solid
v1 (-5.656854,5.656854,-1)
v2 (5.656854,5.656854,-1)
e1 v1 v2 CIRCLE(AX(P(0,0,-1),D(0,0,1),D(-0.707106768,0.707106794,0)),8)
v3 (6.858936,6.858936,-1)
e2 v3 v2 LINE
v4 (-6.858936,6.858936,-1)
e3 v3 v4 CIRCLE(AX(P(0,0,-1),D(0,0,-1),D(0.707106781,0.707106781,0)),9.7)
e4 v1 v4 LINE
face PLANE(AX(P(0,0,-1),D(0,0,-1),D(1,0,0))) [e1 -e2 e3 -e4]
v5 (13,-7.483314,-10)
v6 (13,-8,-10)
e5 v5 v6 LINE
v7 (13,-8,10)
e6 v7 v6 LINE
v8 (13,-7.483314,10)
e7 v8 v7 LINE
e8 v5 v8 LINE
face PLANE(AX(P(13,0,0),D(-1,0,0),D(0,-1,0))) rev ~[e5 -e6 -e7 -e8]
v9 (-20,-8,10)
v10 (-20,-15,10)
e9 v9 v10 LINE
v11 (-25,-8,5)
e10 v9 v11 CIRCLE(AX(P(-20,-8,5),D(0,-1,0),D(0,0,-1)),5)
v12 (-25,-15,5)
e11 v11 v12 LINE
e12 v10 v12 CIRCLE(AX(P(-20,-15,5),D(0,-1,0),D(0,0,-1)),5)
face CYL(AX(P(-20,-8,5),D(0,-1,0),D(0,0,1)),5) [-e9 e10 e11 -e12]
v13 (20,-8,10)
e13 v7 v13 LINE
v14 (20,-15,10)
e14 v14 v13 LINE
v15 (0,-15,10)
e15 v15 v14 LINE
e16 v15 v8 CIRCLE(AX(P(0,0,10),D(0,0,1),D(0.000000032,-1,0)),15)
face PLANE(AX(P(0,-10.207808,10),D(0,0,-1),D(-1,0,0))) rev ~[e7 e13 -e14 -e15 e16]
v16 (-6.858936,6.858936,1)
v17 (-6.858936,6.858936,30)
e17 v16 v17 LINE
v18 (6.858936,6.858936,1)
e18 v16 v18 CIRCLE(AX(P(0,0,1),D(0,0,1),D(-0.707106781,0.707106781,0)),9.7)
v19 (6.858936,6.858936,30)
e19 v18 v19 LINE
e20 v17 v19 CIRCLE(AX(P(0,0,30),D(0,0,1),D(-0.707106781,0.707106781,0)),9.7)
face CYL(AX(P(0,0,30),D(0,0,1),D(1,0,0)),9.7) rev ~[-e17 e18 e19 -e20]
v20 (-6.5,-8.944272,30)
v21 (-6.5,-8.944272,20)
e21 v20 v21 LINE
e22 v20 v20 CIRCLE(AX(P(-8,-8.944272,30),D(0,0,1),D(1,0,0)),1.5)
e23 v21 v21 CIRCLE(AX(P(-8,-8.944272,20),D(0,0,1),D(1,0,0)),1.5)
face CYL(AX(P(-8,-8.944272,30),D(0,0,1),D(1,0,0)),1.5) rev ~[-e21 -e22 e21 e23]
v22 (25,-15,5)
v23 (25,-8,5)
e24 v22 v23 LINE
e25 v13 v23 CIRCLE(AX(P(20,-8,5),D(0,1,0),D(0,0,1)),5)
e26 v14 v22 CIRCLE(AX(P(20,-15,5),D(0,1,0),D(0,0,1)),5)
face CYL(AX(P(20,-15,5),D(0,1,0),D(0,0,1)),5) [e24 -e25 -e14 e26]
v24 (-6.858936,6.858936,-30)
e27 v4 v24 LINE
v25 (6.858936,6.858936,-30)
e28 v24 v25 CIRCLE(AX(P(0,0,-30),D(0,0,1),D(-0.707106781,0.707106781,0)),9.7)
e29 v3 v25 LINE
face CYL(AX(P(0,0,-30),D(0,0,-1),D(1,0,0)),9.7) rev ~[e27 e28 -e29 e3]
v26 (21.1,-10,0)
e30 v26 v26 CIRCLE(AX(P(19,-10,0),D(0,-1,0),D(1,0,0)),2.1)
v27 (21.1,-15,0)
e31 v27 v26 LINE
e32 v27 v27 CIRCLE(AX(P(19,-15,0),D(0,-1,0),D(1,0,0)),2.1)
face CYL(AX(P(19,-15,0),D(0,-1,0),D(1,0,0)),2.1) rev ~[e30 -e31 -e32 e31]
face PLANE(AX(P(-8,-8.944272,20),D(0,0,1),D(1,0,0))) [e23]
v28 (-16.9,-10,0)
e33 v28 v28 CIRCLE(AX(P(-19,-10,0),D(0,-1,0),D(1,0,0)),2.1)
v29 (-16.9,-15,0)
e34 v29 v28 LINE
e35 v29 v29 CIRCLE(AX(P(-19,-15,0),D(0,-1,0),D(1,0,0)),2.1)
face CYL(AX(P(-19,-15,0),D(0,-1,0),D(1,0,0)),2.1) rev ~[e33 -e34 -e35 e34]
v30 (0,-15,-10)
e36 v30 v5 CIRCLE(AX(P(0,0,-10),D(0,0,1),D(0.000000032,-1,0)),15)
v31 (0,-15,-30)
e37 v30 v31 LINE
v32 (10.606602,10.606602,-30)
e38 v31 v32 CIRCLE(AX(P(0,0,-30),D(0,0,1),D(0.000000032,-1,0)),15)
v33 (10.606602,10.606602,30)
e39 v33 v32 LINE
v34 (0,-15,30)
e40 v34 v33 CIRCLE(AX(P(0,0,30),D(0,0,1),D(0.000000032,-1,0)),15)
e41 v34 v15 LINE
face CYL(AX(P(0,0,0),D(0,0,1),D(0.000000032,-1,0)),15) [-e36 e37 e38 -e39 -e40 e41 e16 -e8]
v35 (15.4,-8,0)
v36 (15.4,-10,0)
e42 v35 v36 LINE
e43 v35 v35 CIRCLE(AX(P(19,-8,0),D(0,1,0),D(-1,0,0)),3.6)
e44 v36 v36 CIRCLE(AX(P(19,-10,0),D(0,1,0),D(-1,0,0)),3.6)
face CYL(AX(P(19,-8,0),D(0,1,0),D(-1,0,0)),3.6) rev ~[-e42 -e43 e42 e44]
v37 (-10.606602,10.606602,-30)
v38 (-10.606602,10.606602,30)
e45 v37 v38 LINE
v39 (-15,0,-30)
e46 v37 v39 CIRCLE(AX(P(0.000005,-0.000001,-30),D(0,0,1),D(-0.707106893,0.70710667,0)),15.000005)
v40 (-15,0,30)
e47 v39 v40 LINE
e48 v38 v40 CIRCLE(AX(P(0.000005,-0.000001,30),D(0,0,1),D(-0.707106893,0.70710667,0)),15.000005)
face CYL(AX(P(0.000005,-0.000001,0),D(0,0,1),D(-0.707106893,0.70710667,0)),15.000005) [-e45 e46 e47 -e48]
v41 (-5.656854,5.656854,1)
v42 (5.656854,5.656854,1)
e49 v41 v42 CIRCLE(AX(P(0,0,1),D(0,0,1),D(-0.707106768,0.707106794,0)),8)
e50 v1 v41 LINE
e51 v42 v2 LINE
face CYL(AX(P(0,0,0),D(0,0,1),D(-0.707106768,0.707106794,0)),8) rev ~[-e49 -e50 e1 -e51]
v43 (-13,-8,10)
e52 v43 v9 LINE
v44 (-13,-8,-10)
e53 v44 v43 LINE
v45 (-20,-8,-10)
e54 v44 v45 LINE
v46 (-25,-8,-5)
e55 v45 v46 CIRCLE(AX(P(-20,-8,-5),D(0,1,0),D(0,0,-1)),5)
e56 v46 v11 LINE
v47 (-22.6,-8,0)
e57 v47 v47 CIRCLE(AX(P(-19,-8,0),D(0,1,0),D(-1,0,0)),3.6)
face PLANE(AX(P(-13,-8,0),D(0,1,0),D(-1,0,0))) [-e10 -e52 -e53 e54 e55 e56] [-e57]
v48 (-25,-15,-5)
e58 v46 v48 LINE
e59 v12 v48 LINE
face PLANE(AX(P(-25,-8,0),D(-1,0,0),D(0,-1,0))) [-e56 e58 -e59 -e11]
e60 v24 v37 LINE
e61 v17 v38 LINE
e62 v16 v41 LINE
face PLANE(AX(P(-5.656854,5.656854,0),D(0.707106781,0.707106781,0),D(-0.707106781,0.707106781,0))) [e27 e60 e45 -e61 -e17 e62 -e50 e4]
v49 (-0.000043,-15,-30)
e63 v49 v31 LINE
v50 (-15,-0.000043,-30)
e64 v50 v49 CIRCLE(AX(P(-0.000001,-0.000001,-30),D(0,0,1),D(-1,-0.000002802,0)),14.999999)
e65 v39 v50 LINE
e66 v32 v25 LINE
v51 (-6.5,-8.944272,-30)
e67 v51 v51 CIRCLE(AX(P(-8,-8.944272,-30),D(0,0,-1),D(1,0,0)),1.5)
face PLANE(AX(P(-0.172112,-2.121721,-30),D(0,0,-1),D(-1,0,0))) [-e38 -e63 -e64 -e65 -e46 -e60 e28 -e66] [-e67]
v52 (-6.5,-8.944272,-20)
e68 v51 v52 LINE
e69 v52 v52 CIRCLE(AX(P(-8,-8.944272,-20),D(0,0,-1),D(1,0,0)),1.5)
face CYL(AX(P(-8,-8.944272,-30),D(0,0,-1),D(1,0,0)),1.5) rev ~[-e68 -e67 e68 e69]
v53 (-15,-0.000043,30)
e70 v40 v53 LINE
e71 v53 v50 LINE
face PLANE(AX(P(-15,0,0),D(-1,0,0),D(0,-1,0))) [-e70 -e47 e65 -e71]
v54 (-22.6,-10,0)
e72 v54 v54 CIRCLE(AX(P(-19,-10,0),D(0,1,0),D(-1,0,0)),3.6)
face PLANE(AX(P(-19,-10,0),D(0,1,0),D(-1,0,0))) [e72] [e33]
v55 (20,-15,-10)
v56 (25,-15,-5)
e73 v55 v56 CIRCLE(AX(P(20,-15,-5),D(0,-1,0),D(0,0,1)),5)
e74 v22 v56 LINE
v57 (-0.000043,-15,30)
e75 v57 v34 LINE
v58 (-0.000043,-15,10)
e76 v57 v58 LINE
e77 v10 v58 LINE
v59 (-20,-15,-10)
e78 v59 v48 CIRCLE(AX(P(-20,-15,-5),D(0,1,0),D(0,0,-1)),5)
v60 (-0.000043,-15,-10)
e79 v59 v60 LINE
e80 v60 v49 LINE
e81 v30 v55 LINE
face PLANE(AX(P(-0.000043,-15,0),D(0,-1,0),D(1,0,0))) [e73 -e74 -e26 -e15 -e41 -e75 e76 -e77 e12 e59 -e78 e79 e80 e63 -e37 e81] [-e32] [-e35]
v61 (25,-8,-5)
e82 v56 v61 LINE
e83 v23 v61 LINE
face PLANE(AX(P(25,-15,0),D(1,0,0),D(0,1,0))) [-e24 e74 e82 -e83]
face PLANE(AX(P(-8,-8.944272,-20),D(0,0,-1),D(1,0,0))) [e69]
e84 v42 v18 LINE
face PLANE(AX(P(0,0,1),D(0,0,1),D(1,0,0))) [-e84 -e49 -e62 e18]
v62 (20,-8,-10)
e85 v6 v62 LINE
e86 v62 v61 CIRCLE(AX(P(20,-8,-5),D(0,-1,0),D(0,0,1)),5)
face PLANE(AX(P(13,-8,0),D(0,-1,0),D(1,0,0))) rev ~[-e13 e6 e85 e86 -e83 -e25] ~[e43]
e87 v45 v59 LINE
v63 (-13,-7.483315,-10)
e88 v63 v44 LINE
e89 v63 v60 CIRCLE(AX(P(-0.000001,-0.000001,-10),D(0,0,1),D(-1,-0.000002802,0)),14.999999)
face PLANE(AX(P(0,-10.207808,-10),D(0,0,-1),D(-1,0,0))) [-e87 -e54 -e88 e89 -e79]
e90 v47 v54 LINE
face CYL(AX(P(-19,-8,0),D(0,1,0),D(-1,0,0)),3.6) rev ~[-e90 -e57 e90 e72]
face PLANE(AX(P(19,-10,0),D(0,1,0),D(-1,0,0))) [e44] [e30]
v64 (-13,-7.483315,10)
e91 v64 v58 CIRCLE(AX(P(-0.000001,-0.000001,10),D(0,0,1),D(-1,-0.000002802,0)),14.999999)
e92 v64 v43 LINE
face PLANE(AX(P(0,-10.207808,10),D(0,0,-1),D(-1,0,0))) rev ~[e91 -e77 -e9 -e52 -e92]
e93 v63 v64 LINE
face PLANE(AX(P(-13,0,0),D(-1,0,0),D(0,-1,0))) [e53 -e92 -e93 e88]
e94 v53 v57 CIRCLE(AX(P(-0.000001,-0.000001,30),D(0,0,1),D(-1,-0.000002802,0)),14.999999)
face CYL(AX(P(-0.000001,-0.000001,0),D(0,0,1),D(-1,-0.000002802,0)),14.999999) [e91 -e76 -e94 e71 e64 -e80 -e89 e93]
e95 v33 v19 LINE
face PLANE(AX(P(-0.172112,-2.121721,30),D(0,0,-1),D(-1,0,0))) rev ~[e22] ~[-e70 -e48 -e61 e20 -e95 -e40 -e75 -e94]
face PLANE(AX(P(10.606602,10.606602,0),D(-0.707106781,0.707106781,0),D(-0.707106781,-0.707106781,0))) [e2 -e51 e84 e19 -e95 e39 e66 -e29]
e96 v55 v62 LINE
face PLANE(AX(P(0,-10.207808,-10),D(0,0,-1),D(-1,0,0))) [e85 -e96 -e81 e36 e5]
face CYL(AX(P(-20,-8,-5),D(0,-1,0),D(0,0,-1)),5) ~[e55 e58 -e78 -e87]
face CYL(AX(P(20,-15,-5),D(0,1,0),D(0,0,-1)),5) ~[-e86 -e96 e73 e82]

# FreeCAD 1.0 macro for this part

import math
import FreeCAD as App
import Part
import Sketcher

V = App.Vector


def edges_at(feature, points):
    """Names of the edges that pass closest to the given points."""
    edges = feature.Shape.Edges
    near = lambda p: min(range(len(edges)), key=lambda i: edges[i].distToShape(Part.Vertex(*p))[0])
    return sorted({f"Edge{near(p) + 1}" for p in points})

doc = App.newDocument("Part")
params = doc.addObject("Spreadsheet::Sheet", "Params")
for row, (alias, value) in enumerate([
    ("sketch1_radius", "8 mm"),
    ("sketch1_radius2", "14.999999 mm"),
    ("pad1_length", "60 mm"),
    ("sketch2_diameter", "19.4 mm"),
    ("pocket1_length", "29 mm"),
    ("sketch3_diameter", "19.4 mm"),
    ("pocket2_length", "29 mm"),
    ("sketch4_diameter", "3 mm"),
    ("pocket3_length", "10 mm"),
    ("sketch5_diameter", "3 mm"),
    ("pocket4_length", "10 mm"),
    ("sketch6_radius", "13 mm"),
    ("sketch6_width", "12 mm"),
    ("sketch6_height", "8 mm"),
    ("sketch6_height2", "7 mm"),
    ("pad2_length", "20 mm"),
    ("sketch7_diameter", "4.2 mm"),
    ("pocket5_length", "7 mm"),
    ("sketch8_diameter", "7.2 mm"),
    ("pocket6_length", "2 mm"),
    ("fillet_radius", "5 mm"),
], start=1):
    params.set(f"A{row}", alias)
    params.set(f"B{row}", "=" + value)
    params.setAlias(f"B{row}", alias)

body = doc.addObject("PartDesign::Body", "Body")

# Sketch on XY plane
sketch1 = body.newObject("Sketcher::SketchObject", "Sketch")
sketch1.AttachmentSupport = (doc.getObject("XY_Plane"), [""])
sketch1.MapMode = "FlatFace"
sketch1.addGeometry([
    Part.ArcOfCircle(Part.Circle(V(0, 0, 0), V(0, 0, 1), 8), math.radians(134.999999), math.radians(405.000001)),  # 0
    Part.LineSegment(V(-5.656854, 5.656854, 0), V(-10.606602, 10.606602, 0)),  # 1
    Part.ArcOfCircle(Part.Circle(V(0.000005, -0.000001, 0), V(0, 0, 1), 15.000005), math.radians(135.000009), math.radians(179.999995)),  # 2
    Part.LineSegment(V(-15, 0, 0), V(-15, -0.000043, 0)),  # 3
    Part.ArcOfCircle(Part.Circle(V(-0.000001, -0.000001, 0), V(0, 0, 1), 14.999999), math.radians(-179.999839), math.radians(-90.000161)),  # 4
    Part.LineSegment(V(-0.000043, -15, 0), V(0, -15, 0)),  # 5
    Part.ArcOfCircle(Part.Circle(V(0, 0, 0), V(0, 0, 1), 15), math.radians(-89.999998), math.radians(44.999998)),  # 6
    Part.LineSegment(V(10.606602, 10.606602, 0), V(5.656854, 5.656854, 0)),  # 7
], False)
sketch1.addConstraint([
    Sketcher.Constraint("Coincident", 0, 1, 1, 1),
    Sketcher.Constraint("Coincident", 1, 2, 2, 1),
    Sketcher.Constraint("Tangent", 2, 2, 3, 1),
    Sketcher.Constraint("Coincident", 3, 2, 4, 1),
    Sketcher.Constraint("Coincident", 4, 2, 5, 1),
    Sketcher.Constraint("Tangent", 5, 2, 6, 1),
    Sketcher.Constraint("Coincident", 6, 2, 7, 1),
    Sketcher.Constraint("Coincident", 7, 2, 0, 2),
    Sketcher.Constraint("Coincident", 0, 3, -1, 1),
    Sketcher.Constraint("Coincident", 2, 3, -1, 1),
    Sketcher.Constraint("Coincident", 4, 3, -1, 1),
    Sketcher.Constraint("Coincident", 6, 3, -1, 1),
    Sketcher.Constraint("PointOnObject", 2, 2, -1),
    Sketcher.Constraint("PointOnObject", 5, 2, -2),
    Sketcher.Constraint("Perpendicular", 1, 7),
    Sketcher.Constraint("Horizontal", 1, 2, 6, 2),
    Sketcher.Constraint("Horizontal", 0, 1, 7, 2),
    Sketcher.Constraint("Equal", 5, 3),
    Sketcher.Constraint("Radius", 0, 8.0),
    Sketcher.Constraint("Radius", 4, 14.999999),
    Sketcher.Constraint("DistanceX", -1, 1, 6, 2, 10.606602),
    Sketcher.Constraint("DistanceY", 3, 2, 0, 1, 5.656897),
])
sketch1.setExpression("Constraints[18]", "Params.sketch1_radius")
sketch1.setExpression("Constraints[19]", "Params.sketch1_radius2")
pad1 = body.newObject("PartDesign::Pad", "Pad")
pad1.Profile = sketch1
pad1.setExpression("Length", "Params.pad1_length")
pad1.Midplane = True

# Sketch on XY plane
sketch2 = body.newObject("Sketcher::SketchObject", "Sketch001")
sketch2.AttachmentSupport = (doc.getObject("XY_Plane"), [""])
sketch2.MapMode = "FlatFace"
sketch2.AttachmentOffset = App.Placement(V(0, 0, 30), App.Rotation())
sketch2.addGeometry(Part.Circle(V(0, 0, 0), V(0, 0, 1), 10), False)
sketch2.addConstraint([
    Sketcher.Constraint("Coincident", 0, 3, -1, 1),
    Sketcher.Constraint("Diameter", 0, 19.4),
])
sketch2.setExpression("Constraints[1]", "Params.sketch2_diameter")
pocket1 = body.newObject("PartDesign::Pocket", "Pocket")
pocket1.Profile = sketch2
pocket1.setExpression("Length", "Params.pocket1_length")

# Sketch on XY plane
sketch3 = body.newObject("Sketcher::SketchObject", "Sketch002")
sketch3.AttachmentSupport = (doc.getObject("XY_Plane"), [""])
sketch3.MapMode = "FlatFace"
sketch3.AttachmentOffset = App.Placement(V(0, 0, -30), App.Rotation())
sketch3.addGeometry(Part.Circle(V(0, 0, 0), V(0, 0, 1), 10), False)
sketch3.addConstraint([
    Sketcher.Constraint("Coincident", 0, 3, -1, 1),
    Sketcher.Constraint("Diameter", 0, 19.4),
])
sketch3.setExpression("Constraints[1]", "Params.sketch3_diameter")
pocket2 = body.newObject("PartDesign::Pocket", "Pocket001")
pocket2.Profile = sketch3
pocket2.setExpression("Length", "Params.pocket2_length")
pocket2.Reversed = True

# Sketch on XY plane
sketch4 = body.newObject("Sketcher::SketchObject", "Sketch003")
sketch4.AttachmentSupport = (doc.getObject("XY_Plane"), [""])
sketch4.MapMode = "FlatFace"
sketch4.AttachmentOffset = App.Placement(V(0, 0, 30), App.Rotation())
sketch4.addGeometry(Part.Circle(V(-8, -8.9, 0), V(0, 0, 1), 1.5), False)
sketch4.addConstraint([
    Sketcher.Constraint("Diameter", 0, 3.0),
    Sketcher.Constraint("DistanceX", 0, 3, -1, 1, 8.0),
    Sketcher.Constraint("DistanceY", 0, 3, -1, 1, 8.944272),
])
sketch4.setExpression("Constraints[0]", "Params.sketch4_diameter")
pocket3 = body.newObject("PartDesign::Pocket", "Pocket002")
pocket3.Profile = sketch4
pocket3.setExpression("Length", "Params.pocket3_length")

# Sketch on XY plane
sketch5 = body.newObject("Sketcher::SketchObject", "Sketch004")
sketch5.AttachmentSupport = (doc.getObject("XY_Plane"), [""])
sketch5.MapMode = "FlatFace"
sketch5.AttachmentOffset = App.Placement(V(0, 0, -30), App.Rotation())
sketch5.addGeometry(Part.Circle(V(-8, -8.9, 0), V(0, 0, 1), 1.5), False)
sketch5.addConstraint([
    Sketcher.Constraint("Diameter", 0, 3.0),
    Sketcher.Constraint("DistanceX", 0, 3, -1, 1, 8.0),
    Sketcher.Constraint("DistanceY", 0, 3, -1, 1, 8.944272),
])
sketch5.setExpression("Constraints[0]", "Params.sketch5_diameter")
pocket4 = body.newObject("PartDesign::Pocket", "Pocket003")
pocket4.Profile = sketch5
pocket4.setExpression("Length", "Params.pocket4_length")
pocket4.Reversed = True
body2 = doc.addObject("PartDesign::Body", "Body001")

# Sketch on XY plane
sketch6 = body2.newObject("Sketcher::SketchObject", "Sketch005")
sketch6.AttachmentSupport = (doc.getObject("XY_Plane001"), [""])
sketch6.MapMode = "FlatFace"
sketch6.addGeometry([
    Part.ArcOfCircle(Part.Circle(V(0, 0, 0), V(0, 0, 1), 13), math.radians(180), math.radians(360)),  # 0
    Part.LineSegment(V(-13, 0, 0), V(-13, -8, 0)),  # 1
    Part.LineSegment(V(-13, -8, 0), V(-25, -8, 0)),  # 2
    Part.LineSegment(V(-25, -8, 0), V(-25, -15, 0)),  # 3
    Part.LineSegment(V(-25, -15, 0), V(25, -15, 0)),  # 4
    Part.LineSegment(V(25, -15, 0), V(25, -8, 0)),  # 5
    Part.LineSegment(V(25, -8, 0), V(13, -8, 0)),  # 6
    Part.LineSegment(V(13, -8, 0), V(13, 0, 0)),  # 7
], False)
sketch6.addConstraint([
    Sketcher.Constraint("Tangent", 0, 1, 1, 1),
    Sketcher.Constraint("Coincident", 1, 2, 2, 1),
    Sketcher.Constraint("Coincident", 2, 2, 3, 1),
    Sketcher.Constraint("Coincident", 3, 2, 4, 1),
    Sketcher.Constraint("Coincident", 4, 2, 5, 1),
    Sketcher.Constraint("Coincident", 5, 2, 6, 1),
    Sketcher.Constraint("Coincident", 6, 2, 7, 1),
    Sketcher.Constraint("Tangent", 7, 2, 0, 2),
    Sketcher.Constraint("Vertical", 1),
    Sketcher.Constraint("Horizontal", 2),
    Sketcher.Constraint("Vertical", 3),
    Sketcher.Constraint("Horizontal", 4),
    Sketcher.Constraint("Vertical", 5),
    Sketcher.Constraint("Horizontal", 6),
    Sketcher.Constraint("Vertical", 7),
    Sketcher.Constraint("Coincident", 0, 3, -1, 1),
    Sketcher.Constraint("Symmetric", 2, 2, 5, 2, -2),
    Sketcher.Constraint("Radius", 0, 13.0),
    Sketcher.Constraint("DistanceX", 2, 2, 2, 1, 12.0),
    Sketcher.Constraint("DistanceY", 1, 2, 1, 1, 8.0),
    Sketcher.Constraint("DistanceY", 3, 2, 3, 1, 7.0),
])
sketch6.setExpression("Constraints[17]", "Params.sketch6_radius")
sketch6.setExpression("Constraints[18]", "Params.sketch6_width")
sketch6.setExpression("Constraints[19]", "Params.sketch6_height")
sketch6.setExpression("Constraints[20]", "Params.sketch6_height2")
pad2 = body2.newObject("PartDesign::Pad", "Pad001")
pad2.Profile = sketch6
pad2.setExpression("Length", "Params.pad2_length")
pad2.Midplane = True

# Sketch on XZ plane
sketch7 = body2.newObject("Sketcher::SketchObject", "Sketch006")
sketch7.AttachmentSupport = (doc.getObject("XZ_Plane001"), [""])
sketch7.MapMode = "FlatFace"
sketch7.AttachmentOffset = App.Placement(V(0, 0, 15), App.Rotation())
sketch7.addGeometry([
    Part.Circle(V(-19, 0, 0), V(0, 0, 1), 2.1),
    Part.Circle(V(19, 0, 0), V(0, 0, 1), 2.1),
], False)
sketch7.addConstraint([
    Sketcher.Constraint("Equal", 0, 1),
    Sketcher.Constraint("Symmetric", 0, 3, 1, 3, -1, 1),
    Sketcher.Constraint("PointOnObject", 0, 3, -1),
    Sketcher.Constraint("Diameter", 0, 4.2),
    Sketcher.Constraint("DistanceX", 0, 3, -1, 1, 19.0),
])
sketch7.setExpression("Constraints[3]", "Params.sketch7_diameter")
pocket5 = body2.newObject("PartDesign::Pocket", "Pocket004")
pocket5.Profile = sketch7
pocket5.setExpression("Length", "Params.pocket5_length")

# Sketch on XZ plane
sketch8 = body2.newObject("Sketcher::SketchObject", "Sketch007")
sketch8.AttachmentSupport = (doc.getObject("XZ_Plane001"), [""])
sketch8.MapMode = "FlatFace"
sketch8.AttachmentOffset = App.Placement(V(0, 0, 8), App.Rotation())
sketch8.addGeometry([
    Part.Circle(V(19, 0, 0), V(0, 0, 1), 3.6),
    Part.Circle(V(-19, 0, 0), V(0, 0, 1), 3.6),
], False)
sketch8.addConstraint([
    Sketcher.Constraint("Equal", 0, 1),
    Sketcher.Constraint("Symmetric", 0, 3, 1, 3, -1, 1),
    Sketcher.Constraint("PointOnObject", 0, 3, -1),
    Sketcher.Constraint("Diameter", 0, 7.2),
    Sketcher.Constraint("DistanceX", -1, 1, 0, 3, 19.0),
])
sketch8.setExpression("Constraints[3]", "Params.sketch8_diameter")
pocket6 = body2.newObject("PartDesign::Pocket", "Pocket005")
pocket6.Profile = sketch8
pocket6.setExpression("Length", "Params.pocket6_length")
pocket6.Reversed = True
doc.recompute()

fillet = body2.newObject("PartDesign::Fillet", "Fillet")
fillet.Base = (pocket6, edges_at(pocket6, [
    (25, -11.5, 10),
    (25, -11.5, -10),
    (-25, -11.5, 10),
    (-25, -11.5, -10),
]))
fillet.setExpression("Radius", "Params.fillet_radius")
doc.recompute()

boolean = body2.newObject("PartDesign::Boolean", "Boolean")
boolean.Type = "Fuse"
boolean.addObjects([body])

doc.recompute()
